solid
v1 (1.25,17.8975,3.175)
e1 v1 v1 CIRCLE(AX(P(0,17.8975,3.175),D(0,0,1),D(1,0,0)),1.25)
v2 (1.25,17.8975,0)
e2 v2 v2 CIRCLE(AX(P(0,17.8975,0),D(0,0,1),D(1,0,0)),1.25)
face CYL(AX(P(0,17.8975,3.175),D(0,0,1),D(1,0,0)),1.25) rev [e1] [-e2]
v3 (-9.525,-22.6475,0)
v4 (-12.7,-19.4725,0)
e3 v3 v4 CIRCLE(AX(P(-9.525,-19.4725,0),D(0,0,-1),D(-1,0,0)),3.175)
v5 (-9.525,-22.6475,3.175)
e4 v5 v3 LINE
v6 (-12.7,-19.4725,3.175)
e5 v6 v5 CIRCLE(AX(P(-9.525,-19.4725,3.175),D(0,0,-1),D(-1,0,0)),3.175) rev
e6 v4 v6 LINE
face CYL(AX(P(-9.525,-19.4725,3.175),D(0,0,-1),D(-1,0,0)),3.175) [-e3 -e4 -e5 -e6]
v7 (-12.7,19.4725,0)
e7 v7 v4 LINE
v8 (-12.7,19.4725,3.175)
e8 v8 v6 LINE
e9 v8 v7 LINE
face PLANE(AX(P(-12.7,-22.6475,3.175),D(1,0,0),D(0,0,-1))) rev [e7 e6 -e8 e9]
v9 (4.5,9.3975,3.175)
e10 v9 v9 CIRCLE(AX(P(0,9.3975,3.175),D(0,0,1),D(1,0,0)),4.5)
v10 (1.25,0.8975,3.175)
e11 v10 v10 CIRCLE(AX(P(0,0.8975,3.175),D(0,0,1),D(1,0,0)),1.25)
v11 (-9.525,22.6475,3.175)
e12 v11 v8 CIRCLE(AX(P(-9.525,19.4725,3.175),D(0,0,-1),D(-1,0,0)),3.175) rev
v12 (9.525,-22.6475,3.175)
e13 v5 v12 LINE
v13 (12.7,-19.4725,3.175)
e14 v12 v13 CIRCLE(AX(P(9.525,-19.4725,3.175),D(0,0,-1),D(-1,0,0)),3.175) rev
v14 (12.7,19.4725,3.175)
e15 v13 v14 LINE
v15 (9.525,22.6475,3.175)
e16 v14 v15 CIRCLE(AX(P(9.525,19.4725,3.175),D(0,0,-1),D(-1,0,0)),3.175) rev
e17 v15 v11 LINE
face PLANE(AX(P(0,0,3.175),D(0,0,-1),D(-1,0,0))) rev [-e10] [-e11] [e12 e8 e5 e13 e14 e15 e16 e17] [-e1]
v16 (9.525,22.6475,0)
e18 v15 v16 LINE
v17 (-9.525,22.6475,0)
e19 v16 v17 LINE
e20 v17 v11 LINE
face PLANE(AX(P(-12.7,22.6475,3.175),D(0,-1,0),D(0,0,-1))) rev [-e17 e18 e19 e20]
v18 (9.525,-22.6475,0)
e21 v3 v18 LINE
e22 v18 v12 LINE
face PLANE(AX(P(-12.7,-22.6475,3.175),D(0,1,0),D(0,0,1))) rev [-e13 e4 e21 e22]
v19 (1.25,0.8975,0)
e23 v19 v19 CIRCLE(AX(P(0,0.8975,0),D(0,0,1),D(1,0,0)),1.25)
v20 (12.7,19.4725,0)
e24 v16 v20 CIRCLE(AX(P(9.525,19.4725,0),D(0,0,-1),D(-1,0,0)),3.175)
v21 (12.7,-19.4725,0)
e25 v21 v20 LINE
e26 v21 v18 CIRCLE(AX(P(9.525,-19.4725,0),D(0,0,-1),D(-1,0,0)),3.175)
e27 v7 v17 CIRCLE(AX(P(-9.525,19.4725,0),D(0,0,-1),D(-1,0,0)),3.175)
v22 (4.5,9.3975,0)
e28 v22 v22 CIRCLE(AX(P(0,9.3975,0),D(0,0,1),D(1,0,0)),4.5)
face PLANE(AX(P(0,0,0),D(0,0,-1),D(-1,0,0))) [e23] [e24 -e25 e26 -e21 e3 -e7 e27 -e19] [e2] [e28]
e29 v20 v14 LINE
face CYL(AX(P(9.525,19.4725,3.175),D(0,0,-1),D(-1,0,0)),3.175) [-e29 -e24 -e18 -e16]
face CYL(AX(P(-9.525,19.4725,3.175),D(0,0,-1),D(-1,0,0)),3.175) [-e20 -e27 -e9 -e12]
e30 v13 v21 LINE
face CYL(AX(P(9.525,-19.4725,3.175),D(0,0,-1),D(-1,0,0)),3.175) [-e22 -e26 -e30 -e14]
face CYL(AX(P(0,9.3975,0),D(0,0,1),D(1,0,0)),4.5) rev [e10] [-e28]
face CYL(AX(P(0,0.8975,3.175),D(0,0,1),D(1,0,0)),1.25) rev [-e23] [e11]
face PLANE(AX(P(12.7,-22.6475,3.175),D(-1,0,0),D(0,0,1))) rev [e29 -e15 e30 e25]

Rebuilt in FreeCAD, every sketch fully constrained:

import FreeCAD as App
import Part
import Sketcher
Q = App.Units.Quantity


def edges_at(feature, points):
    """Names of the edges that pass closest to the given points."""
    edges = feature.Shape.Edges
    near = lambda p: min(range(len(edges)), key=lambda i: edges[i].distToShape(Part.Vertex(*p))[0])
    return sorted({f"Edge{near(p) + 1}" for p in points})

doc = App.newDocument("Part")
body = doc.addObject("PartDesign::Body", "Body")

sketch1 = body.newObject("Sketcher::SketchObject", "Sketch")
sketch1.AttachmentSupport = (doc.getObject("XY_Plane"), [""])
sketch1.MapMode = "FlatFace"
sketch1.addGeometry([
    Part.LineSegment(App.Vector(-12.7, 22.6475, 0), App.Vector(-12.7, -22.6475, 0)),
    Part.LineSegment(App.Vector(-12.7, -22.6475, 0), App.Vector(12.7, -22.6475, 0)),
    Part.LineSegment(App.Vector(12.7, -22.6475, 0), App.Vector(12.7, 22.6475, 0)),
    Part.LineSegment(App.Vector(12.7, 22.6475, 0), App.Vector(-12.7, 22.6475, 0)),
], False)
sketch1.addConstraint([
    Sketcher.Constraint("Coincident", 0, 2, 1, 1),
    Sketcher.Constraint("Coincident", 1, 2, 2, 1),
    Sketcher.Constraint("Coincident", 2, 2, 3, 1),
    Sketcher.Constraint("Coincident", 3, 2, 0, 1),
    Sketcher.Constraint("Vertical", 0),
    Sketcher.Constraint("Horizontal", 1),
    Sketcher.Constraint("Vertical", 2),
    Sketcher.Constraint("Horizontal", 3),
    Sketcher.Constraint("Symmetric", 0, 2, 2, 2, -1, 1),
    Sketcher.Constraint("DistanceX", 1, 1, 1, 2, Q("25.4 mm")),
    Sketcher.Constraint("DistanceY", 0, 2, 0, 1, Q("45.295 mm")),
])
pad1 = body.newObject("PartDesign::Pad", "Pad")
pad1.Profile = sketch1
pad1.Length = 3.175

sketch2 = body.newObject("Sketcher::SketchObject", "Sketch001")
sketch2.AttachmentSupport = (doc.getObject("XY_Plane"), [""])
sketch2.MapMode = "FlatFace"
sketch2.AttachmentOffset = App.Placement(App.Vector(0, 0, 3.175), App.Rotation())
sketch2.addGeometry(Part.Circle(App.Vector(0, 9.3975, 0), App.Vector(0, 0, 1), 4.5), False)
sketch2.addConstraint([
    Sketcher.Constraint("PointOnObject", 0, 3, -2),
    Sketcher.Constraint("Diameter", 0, Q("9 mm")),
    Sketcher.Constraint("DistanceY", -1, 1, 0, 3, Q("9.3975 mm")),
])
pocket1 = body.newObject("PartDesign::Pocket", "Pocket")
pocket1.Profile = sketch2
pocket1.Type = "ThroughAll"

sketch3 = body.newObject("Sketcher::SketchObject", "Sketch002")
sketch3.AttachmentSupport = (doc.getObject("XY_Plane"), [""])
sketch3.MapMode = "FlatFace"
sketch3.AttachmentOffset = App.Placement(App.Vector(0, 0, 3.175), App.Rotation())
sketch3.addGeometry([
    Part.Circle(App.Vector(0, 17.8975, 0), App.Vector(0, 0, 1), 1.25),
    Part.Circle(App.Vector(0, 0.8975, 0), App.Vector(0, 0, 1), 1.25),
], False)
sketch3.addConstraint([
    Sketcher.Constraint("Equal", 0, 1),
    Sketcher.Constraint("PointOnObject", 0, 3, -2),
    Sketcher.Constraint("PointOnObject", 1, 3, -2),
    Sketcher.Constraint("Diameter", 0, Q("2.5 mm")),
    Sketcher.Constraint("DistanceY", 1, 3, 0, 3, Q("17 mm")),
    Sketcher.Constraint("DistanceY", -1, 1, 0, 3, Q("17.8975 mm")),
])
doc.recompute()
hole = body.newObject("PartDesign::Hole", "Hole")
hole.Profile = sketch3
hole.ThreadType = "None"
hole.Diameter = 2.5
hole.DepthType = "ThroughAll"
doc.recompute()

fillet = body.newObject("PartDesign::Fillet", "Fillet")
fillet.Base = (hole, edges_at(hole, [
    (12.7, -22.648, 1.587),
    (-12.7, -22.648, 1.587),
    (-12.7, 22.648, 1.587),
    (12.7, 22.648, 1.587),
]))
fillet.Radius = 3.175

doc.recompute()
